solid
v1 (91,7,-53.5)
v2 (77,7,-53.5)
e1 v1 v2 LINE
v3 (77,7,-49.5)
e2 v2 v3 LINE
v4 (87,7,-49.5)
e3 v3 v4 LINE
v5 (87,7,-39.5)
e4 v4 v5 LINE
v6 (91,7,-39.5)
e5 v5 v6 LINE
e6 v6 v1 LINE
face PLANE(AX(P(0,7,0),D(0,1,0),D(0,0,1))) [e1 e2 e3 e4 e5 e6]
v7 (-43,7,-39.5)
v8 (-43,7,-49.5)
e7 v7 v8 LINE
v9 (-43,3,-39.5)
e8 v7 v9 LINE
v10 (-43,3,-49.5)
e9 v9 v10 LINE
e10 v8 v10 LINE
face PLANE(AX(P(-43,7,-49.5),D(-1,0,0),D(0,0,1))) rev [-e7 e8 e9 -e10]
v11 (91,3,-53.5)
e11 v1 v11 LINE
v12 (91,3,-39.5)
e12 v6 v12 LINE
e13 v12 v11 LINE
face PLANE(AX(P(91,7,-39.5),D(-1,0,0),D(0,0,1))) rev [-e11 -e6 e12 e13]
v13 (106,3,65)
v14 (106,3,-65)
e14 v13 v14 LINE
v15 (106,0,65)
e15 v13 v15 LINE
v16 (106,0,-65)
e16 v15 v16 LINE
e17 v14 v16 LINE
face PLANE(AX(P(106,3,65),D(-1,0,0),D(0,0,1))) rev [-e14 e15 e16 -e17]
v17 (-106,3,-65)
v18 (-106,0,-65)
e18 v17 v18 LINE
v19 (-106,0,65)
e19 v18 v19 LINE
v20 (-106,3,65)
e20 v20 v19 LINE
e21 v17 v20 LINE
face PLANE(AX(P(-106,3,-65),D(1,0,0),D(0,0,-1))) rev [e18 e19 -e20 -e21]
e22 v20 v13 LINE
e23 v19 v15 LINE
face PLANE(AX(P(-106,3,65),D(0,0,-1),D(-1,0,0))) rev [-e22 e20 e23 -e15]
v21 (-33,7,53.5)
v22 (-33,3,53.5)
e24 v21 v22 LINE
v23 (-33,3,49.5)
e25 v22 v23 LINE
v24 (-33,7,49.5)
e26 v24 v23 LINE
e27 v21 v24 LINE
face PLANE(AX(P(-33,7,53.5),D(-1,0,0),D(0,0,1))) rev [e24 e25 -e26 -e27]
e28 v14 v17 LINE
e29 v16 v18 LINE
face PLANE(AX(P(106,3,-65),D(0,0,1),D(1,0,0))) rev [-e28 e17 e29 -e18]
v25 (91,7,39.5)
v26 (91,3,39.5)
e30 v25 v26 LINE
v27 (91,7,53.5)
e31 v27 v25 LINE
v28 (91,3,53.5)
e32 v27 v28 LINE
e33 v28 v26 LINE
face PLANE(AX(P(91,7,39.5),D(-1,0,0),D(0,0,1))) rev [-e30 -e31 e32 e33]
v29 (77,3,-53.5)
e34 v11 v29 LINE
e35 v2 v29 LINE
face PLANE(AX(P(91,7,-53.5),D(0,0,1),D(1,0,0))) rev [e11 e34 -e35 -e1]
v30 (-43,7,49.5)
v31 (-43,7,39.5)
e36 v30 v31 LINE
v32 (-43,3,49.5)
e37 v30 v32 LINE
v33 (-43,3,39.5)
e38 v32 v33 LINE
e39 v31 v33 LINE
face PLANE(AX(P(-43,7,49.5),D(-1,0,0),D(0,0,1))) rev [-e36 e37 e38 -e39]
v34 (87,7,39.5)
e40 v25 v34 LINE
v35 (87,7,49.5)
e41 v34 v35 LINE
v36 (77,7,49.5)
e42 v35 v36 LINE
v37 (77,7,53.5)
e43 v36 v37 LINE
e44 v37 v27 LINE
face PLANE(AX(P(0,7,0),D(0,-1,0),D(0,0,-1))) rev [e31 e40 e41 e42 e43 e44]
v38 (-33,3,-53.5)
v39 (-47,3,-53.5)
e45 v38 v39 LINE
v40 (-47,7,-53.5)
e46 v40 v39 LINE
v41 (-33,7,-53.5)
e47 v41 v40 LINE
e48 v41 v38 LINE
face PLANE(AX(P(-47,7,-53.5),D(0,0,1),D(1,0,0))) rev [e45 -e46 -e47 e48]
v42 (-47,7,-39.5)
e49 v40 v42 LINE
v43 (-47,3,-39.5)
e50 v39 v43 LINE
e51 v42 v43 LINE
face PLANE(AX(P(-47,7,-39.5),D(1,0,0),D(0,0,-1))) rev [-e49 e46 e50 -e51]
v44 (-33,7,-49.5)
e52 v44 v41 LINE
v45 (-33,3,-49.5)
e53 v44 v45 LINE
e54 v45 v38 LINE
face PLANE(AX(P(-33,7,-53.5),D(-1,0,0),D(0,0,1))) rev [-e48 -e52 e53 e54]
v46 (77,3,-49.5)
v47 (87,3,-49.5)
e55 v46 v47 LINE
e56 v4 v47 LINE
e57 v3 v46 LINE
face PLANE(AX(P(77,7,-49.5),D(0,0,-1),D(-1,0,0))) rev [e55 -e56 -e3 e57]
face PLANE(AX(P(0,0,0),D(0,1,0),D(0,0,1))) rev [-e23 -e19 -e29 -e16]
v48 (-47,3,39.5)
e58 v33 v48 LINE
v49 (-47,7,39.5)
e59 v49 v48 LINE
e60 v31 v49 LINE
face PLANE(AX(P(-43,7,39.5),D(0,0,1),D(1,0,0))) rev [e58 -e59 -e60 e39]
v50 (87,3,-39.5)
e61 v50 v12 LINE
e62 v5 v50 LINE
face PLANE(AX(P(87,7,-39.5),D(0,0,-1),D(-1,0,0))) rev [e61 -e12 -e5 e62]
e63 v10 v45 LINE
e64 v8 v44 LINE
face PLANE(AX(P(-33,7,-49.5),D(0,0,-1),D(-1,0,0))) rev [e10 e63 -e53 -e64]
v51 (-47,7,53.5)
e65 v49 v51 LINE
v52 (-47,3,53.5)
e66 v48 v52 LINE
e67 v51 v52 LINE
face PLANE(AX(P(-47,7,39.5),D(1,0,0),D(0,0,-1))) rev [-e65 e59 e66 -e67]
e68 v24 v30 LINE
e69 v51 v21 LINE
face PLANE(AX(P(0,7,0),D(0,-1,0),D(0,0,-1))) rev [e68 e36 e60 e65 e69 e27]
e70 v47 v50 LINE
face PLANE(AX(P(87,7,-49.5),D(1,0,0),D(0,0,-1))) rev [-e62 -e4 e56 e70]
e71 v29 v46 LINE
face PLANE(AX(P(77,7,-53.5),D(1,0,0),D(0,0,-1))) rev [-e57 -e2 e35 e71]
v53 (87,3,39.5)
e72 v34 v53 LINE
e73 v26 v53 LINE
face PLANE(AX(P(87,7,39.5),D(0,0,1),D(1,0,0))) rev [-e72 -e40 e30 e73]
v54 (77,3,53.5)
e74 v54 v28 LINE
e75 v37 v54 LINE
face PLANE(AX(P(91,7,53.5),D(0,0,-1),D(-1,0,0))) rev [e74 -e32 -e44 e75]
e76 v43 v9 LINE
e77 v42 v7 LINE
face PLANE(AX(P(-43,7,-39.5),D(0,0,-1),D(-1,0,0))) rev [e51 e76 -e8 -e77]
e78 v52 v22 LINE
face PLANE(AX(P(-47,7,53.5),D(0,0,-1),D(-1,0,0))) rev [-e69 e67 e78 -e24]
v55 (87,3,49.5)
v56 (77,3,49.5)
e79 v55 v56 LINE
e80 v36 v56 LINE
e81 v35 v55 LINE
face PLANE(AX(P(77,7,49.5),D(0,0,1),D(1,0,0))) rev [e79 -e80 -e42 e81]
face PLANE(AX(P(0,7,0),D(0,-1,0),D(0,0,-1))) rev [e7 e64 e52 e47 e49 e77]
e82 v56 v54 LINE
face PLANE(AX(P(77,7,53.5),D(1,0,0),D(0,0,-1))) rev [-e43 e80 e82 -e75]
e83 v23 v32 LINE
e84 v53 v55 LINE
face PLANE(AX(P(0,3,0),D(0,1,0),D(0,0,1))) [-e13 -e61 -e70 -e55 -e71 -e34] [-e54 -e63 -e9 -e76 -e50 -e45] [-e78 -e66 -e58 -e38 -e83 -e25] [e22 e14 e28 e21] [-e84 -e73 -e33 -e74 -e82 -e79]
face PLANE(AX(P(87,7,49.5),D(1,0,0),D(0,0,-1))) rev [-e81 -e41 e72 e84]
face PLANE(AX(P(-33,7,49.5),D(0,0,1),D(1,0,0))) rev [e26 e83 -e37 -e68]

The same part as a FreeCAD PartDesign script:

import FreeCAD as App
import Part
import Sketcher

doc = App.newDocument("Part")
body = doc.addObject("PartDesign::Body", "Body")

# Sketch on XZ plane
sketch1 = body.newObject("Sketcher::SketchObject", "Sketch")
sketch1.AttachmentSupport = (doc.getObject("XZ_Plane"), [""])
sketch1.MapMode = "FlatFace"
sketch1.addGeometry([
    Part.LineSegment(App.Vector(-106, -65, 0), App.Vector(-106, 65, 0)),
    Part.LineSegment(App.Vector(-106, 65, 0), App.Vector(106, 65, 0)),
    Part.LineSegment(App.Vector(106, 65, 0), App.Vector(106, -65, 0)),
    Part.LineSegment(App.Vector(106, -65, 0), App.Vector(-106, -65, 0)),
], False)
sketch1.addConstraint([
    Sketcher.Constraint("Coincident", 0, 2, 1, 1),
    Sketcher.Constraint("Coincident", 1, 2, 2, 1),
    Sketcher.Constraint("Coincident", 2, 2, 3, 1),
    Sketcher.Constraint("Coincident", 3, 2, 0, 1),
    Sketcher.Constraint("Vertical", 0),
    Sketcher.Constraint("Horizontal", 1),
    Sketcher.Constraint("Vertical", 2),
    Sketcher.Constraint("Horizontal", 3),
    Sketcher.Constraint("Symmetric", 0, 2, 2, 2, -1, 1),
    Sketcher.Constraint("DistanceX", 1, 1, 1, 2, 212.0),
    Sketcher.Constraint("DistanceY", 0, 1, 0, 2, 130.0),
])
pad1 = body.newObject("PartDesign::Pad", "Pad")
pad1.Profile = sketch1
pad1.Length = 3
pad1.Reversed = True

# Sketch on XZ plane
sketch2 = body.newObject("Sketcher::SketchObject", "Sketch001")
sketch2.AttachmentSupport = (doc.getObject("XZ_Plane"), [""])
sketch2.MapMode = "FlatFace"
sketch2.AttachmentOffset = App.Placement(App.Vector(0, 0, -3), App.Rotation())
sketch2.addGeometry([
    Part.LineSegment(App.Vector(91, -53.5, 0), App.Vector(77, -53.5, 0)),  # 0
    Part.LineSegment(App.Vector(77, -53.5, 0), App.Vector(77, -49.5, 0)),  # 1
    Part.LineSegment(App.Vector(77, -49.5, 0), App.Vector(87, -49.5, 0)),  # 2
    Part.LineSegment(App.Vector(87, -49.5, 0), App.Vector(87, -39.5, 0)),  # 3
    Part.LineSegment(App.Vector(87, -39.5, 0), App.Vector(91, -39.5, 0)),  # 4
    Part.LineSegment(App.Vector(91, -39.5, 0), App.Vector(91, -53.5, 0)),  # 5
    Part.LineSegment(App.Vector(91, 53.5, 0), App.Vector(91, 39.5, 0)),  # 6
    Part.LineSegment(App.Vector(91, 39.5, 0), App.Vector(87, 39.5, 0)),  # 7
    Part.LineSegment(App.Vector(87, 39.5, 0), App.Vector(87, 49.5, 0)),  # 8
    Part.LineSegment(App.Vector(87, 49.5, 0), App.Vector(77, 49.5, 0)),  # 9
    Part.LineSegment(App.Vector(77, 49.5, 0), App.Vector(77, 53.5, 0)),  # 10
    Part.LineSegment(App.Vector(77, 53.5, 0), App.Vector(91, 53.5, 0)),  # 11
    Part.LineSegment(App.Vector(-43, 49.5, 0), App.Vector(-43, 39.5, 0)),  # 12
    Part.LineSegment(App.Vector(-43, 39.5, 0), App.Vector(-47, 39.5, 0)),  # 13
    Part.LineSegment(App.Vector(-47, 39.5, 0), App.Vector(-47, 53.5, 0)),  # 14
    Part.LineSegment(App.Vector(-47, 53.5, 0), App.Vector(-33, 53.5, 0)),  # 15
    Part.LineSegment(App.Vector(-33, 53.5, 0), App.Vector(-33, 49.5, 0)),  # 16
    Part.LineSegment(App.Vector(-33, 49.5, 0), App.Vector(-43, 49.5, 0)),  # 17
    Part.LineSegment(App.Vector(-47, -39.5, 0), App.Vector(-43, -39.5, 0)),  # 18
    Part.LineSegment(App.Vector(-43, -39.5, 0), App.Vector(-43, -49.5, 0)),  # 19
    Part.LineSegment(App.Vector(-43, -49.5, 0), App.Vector(-33, -49.5, 0)),  # 20
    Part.LineSegment(App.Vector(-33, -49.5, 0), App.Vector(-33, -53.5, 0)),  # 21
    Part.LineSegment(App.Vector(-33, -53.5, 0), App.Vector(-47, -53.5, 0)),  # 22
    Part.LineSegment(App.Vector(-47, -53.5, 0), App.Vector(-47, -39.5, 0)),  # 23
], False)
sketch2.addConstraint([
    Sketcher.Constraint("Coincident", 0, 2, 1, 1),
    Sketcher.Constraint("Coincident", 1, 2, 2, 1),
    Sketcher.Constraint("Coincident", 2, 2, 3, 1),
    Sketcher.Constraint("Coincident", 3, 2, 4, 1),
    Sketcher.Constraint("Coincident", 4, 2, 5, 1),
    Sketcher.Constraint("Coincident", 5, 2, 0, 1),
    Sketcher.Constraint("Coincident", 6, 2, 7, 1),
    Sketcher.Constraint("Coincident", 7, 2, 8, 1),
    Sketcher.Constraint("Coincident", 8, 2, 9, 1),
    Sketcher.Constraint("Coincident", 9, 2, 10, 1),
    Sketcher.Constraint("Coincident", 10, 2, 11, 1),
    Sketcher.Constraint("Coincident", 11, 2, 6, 1),
    Sketcher.Constraint("Coincident", 12, 2, 13, 1),
    Sketcher.Constraint("Coincident", 13, 2, 14, 1),
    Sketcher.Constraint("Coincident", 14, 2, 15, 1),
    Sketcher.Constraint("Coincident", 15, 2, 16, 1),
    Sketcher.Constraint("Coincident", 16, 2, 17, 1),
    Sketcher.Constraint("Coincident", 17, 2, 12, 1),
    Sketcher.Constraint("Coincident", 18, 2, 19, 1),
    Sketcher.Constraint("Coincident", 19, 2, 20, 1),
    Sketcher.Constraint("Coincident", 20, 2, 21, 1),
    Sketcher.Constraint("Coincident", 21, 2, 22, 1),
    Sketcher.Constraint("Coincident", 22, 2, 23, 1),
    Sketcher.Constraint("Coincident", 23, 2, 18, 1),
    Sketcher.Constraint("Horizontal", 0),
    Sketcher.Constraint("Vertical", 1),
    Sketcher.Constraint("Horizontal", 2),
    Sketcher.Constraint("Vertical", 3),
    Sketcher.Constraint("Horizontal", 4),
    Sketcher.Constraint("Vertical", 5),
    Sketcher.Constraint("Vertical", 6),
    Sketcher.Constraint("Horizontal", 7),
    Sketcher.Constraint("Vertical", 8),
    Sketcher.Constraint("Horizontal", 9),
    Sketcher.Constraint("Vertical", 10),
    Sketcher.Constraint("Horizontal", 11),
    Sketcher.Constraint("Vertical", 12),
    Sketcher.Constraint("Horizontal", 13),
    Sketcher.Constraint("Vertical", 14),
    Sketcher.Constraint("Horizontal", 15),
    Sketcher.Constraint("Vertical", 16),
    Sketcher.Constraint("Horizontal", 17),
    Sketcher.Constraint("Horizontal", 18),
    Sketcher.Constraint("Vertical", 19),
    Sketcher.Constraint("Horizontal", 20),
    Sketcher.Constraint("Vertical", 21),
    Sketcher.Constraint("Horizontal", 22),
    Sketcher.Constraint("Vertical", 23),
    Sketcher.Constraint("Symmetric", 4, 2, 6, 2, -1),
    Sketcher.Constraint("Symmetric", 2, 2, 8, 2, -1),
    Sketcher.Constraint("Symmetric", 0, 2, 10, 2, -1),
    Sketcher.Constraint("Symmetric", 12, 2, 18, 2, -1),
    Sketcher.Constraint("Symmetric", 16, 2, 20, 2, -1),
    Sketcher.Constraint("Symmetric", 14, 2, 22, 2, -1),
    Sketcher.Constraint("Horizontal", 7, 2, 12, 2),
    Sketcher.Constraint("Horizontal", 11, 2, 14, 2),
    Sketcher.Constraint("Horizontal", 9, 2, 16, 2),
    Sketcher.Constraint("Equal", 7, 13),
    Sketcher.Constraint("Equal", 11, 15),
    Sketcher.Constraint("Equal", 18, 1),
    Sketcher.Constraint("Equal", 20, 3),
    Sketcher.Constraint("DistanceX", 0, 2, 0, 1, 14.0),
    Sketcher.Constraint("DistanceX", 2, 1, 2, 2, 10.0),
    Sketcher.Constraint("DistanceX", -1, 1, 0, 2, 77.0),
    Sketcher.Constraint("DistanceX", 12, 2, -1, 1, 43.0),
    Sketcher.Constraint("DistanceY", 4, 2, 6, 2, 79.0),
])
pad2 = body.newObject("PartDesign::Pad", "Pad001")
pad2.Profile = sketch2
pad2.Length = 4
pad2.Reversed = True

doc.recompute()
